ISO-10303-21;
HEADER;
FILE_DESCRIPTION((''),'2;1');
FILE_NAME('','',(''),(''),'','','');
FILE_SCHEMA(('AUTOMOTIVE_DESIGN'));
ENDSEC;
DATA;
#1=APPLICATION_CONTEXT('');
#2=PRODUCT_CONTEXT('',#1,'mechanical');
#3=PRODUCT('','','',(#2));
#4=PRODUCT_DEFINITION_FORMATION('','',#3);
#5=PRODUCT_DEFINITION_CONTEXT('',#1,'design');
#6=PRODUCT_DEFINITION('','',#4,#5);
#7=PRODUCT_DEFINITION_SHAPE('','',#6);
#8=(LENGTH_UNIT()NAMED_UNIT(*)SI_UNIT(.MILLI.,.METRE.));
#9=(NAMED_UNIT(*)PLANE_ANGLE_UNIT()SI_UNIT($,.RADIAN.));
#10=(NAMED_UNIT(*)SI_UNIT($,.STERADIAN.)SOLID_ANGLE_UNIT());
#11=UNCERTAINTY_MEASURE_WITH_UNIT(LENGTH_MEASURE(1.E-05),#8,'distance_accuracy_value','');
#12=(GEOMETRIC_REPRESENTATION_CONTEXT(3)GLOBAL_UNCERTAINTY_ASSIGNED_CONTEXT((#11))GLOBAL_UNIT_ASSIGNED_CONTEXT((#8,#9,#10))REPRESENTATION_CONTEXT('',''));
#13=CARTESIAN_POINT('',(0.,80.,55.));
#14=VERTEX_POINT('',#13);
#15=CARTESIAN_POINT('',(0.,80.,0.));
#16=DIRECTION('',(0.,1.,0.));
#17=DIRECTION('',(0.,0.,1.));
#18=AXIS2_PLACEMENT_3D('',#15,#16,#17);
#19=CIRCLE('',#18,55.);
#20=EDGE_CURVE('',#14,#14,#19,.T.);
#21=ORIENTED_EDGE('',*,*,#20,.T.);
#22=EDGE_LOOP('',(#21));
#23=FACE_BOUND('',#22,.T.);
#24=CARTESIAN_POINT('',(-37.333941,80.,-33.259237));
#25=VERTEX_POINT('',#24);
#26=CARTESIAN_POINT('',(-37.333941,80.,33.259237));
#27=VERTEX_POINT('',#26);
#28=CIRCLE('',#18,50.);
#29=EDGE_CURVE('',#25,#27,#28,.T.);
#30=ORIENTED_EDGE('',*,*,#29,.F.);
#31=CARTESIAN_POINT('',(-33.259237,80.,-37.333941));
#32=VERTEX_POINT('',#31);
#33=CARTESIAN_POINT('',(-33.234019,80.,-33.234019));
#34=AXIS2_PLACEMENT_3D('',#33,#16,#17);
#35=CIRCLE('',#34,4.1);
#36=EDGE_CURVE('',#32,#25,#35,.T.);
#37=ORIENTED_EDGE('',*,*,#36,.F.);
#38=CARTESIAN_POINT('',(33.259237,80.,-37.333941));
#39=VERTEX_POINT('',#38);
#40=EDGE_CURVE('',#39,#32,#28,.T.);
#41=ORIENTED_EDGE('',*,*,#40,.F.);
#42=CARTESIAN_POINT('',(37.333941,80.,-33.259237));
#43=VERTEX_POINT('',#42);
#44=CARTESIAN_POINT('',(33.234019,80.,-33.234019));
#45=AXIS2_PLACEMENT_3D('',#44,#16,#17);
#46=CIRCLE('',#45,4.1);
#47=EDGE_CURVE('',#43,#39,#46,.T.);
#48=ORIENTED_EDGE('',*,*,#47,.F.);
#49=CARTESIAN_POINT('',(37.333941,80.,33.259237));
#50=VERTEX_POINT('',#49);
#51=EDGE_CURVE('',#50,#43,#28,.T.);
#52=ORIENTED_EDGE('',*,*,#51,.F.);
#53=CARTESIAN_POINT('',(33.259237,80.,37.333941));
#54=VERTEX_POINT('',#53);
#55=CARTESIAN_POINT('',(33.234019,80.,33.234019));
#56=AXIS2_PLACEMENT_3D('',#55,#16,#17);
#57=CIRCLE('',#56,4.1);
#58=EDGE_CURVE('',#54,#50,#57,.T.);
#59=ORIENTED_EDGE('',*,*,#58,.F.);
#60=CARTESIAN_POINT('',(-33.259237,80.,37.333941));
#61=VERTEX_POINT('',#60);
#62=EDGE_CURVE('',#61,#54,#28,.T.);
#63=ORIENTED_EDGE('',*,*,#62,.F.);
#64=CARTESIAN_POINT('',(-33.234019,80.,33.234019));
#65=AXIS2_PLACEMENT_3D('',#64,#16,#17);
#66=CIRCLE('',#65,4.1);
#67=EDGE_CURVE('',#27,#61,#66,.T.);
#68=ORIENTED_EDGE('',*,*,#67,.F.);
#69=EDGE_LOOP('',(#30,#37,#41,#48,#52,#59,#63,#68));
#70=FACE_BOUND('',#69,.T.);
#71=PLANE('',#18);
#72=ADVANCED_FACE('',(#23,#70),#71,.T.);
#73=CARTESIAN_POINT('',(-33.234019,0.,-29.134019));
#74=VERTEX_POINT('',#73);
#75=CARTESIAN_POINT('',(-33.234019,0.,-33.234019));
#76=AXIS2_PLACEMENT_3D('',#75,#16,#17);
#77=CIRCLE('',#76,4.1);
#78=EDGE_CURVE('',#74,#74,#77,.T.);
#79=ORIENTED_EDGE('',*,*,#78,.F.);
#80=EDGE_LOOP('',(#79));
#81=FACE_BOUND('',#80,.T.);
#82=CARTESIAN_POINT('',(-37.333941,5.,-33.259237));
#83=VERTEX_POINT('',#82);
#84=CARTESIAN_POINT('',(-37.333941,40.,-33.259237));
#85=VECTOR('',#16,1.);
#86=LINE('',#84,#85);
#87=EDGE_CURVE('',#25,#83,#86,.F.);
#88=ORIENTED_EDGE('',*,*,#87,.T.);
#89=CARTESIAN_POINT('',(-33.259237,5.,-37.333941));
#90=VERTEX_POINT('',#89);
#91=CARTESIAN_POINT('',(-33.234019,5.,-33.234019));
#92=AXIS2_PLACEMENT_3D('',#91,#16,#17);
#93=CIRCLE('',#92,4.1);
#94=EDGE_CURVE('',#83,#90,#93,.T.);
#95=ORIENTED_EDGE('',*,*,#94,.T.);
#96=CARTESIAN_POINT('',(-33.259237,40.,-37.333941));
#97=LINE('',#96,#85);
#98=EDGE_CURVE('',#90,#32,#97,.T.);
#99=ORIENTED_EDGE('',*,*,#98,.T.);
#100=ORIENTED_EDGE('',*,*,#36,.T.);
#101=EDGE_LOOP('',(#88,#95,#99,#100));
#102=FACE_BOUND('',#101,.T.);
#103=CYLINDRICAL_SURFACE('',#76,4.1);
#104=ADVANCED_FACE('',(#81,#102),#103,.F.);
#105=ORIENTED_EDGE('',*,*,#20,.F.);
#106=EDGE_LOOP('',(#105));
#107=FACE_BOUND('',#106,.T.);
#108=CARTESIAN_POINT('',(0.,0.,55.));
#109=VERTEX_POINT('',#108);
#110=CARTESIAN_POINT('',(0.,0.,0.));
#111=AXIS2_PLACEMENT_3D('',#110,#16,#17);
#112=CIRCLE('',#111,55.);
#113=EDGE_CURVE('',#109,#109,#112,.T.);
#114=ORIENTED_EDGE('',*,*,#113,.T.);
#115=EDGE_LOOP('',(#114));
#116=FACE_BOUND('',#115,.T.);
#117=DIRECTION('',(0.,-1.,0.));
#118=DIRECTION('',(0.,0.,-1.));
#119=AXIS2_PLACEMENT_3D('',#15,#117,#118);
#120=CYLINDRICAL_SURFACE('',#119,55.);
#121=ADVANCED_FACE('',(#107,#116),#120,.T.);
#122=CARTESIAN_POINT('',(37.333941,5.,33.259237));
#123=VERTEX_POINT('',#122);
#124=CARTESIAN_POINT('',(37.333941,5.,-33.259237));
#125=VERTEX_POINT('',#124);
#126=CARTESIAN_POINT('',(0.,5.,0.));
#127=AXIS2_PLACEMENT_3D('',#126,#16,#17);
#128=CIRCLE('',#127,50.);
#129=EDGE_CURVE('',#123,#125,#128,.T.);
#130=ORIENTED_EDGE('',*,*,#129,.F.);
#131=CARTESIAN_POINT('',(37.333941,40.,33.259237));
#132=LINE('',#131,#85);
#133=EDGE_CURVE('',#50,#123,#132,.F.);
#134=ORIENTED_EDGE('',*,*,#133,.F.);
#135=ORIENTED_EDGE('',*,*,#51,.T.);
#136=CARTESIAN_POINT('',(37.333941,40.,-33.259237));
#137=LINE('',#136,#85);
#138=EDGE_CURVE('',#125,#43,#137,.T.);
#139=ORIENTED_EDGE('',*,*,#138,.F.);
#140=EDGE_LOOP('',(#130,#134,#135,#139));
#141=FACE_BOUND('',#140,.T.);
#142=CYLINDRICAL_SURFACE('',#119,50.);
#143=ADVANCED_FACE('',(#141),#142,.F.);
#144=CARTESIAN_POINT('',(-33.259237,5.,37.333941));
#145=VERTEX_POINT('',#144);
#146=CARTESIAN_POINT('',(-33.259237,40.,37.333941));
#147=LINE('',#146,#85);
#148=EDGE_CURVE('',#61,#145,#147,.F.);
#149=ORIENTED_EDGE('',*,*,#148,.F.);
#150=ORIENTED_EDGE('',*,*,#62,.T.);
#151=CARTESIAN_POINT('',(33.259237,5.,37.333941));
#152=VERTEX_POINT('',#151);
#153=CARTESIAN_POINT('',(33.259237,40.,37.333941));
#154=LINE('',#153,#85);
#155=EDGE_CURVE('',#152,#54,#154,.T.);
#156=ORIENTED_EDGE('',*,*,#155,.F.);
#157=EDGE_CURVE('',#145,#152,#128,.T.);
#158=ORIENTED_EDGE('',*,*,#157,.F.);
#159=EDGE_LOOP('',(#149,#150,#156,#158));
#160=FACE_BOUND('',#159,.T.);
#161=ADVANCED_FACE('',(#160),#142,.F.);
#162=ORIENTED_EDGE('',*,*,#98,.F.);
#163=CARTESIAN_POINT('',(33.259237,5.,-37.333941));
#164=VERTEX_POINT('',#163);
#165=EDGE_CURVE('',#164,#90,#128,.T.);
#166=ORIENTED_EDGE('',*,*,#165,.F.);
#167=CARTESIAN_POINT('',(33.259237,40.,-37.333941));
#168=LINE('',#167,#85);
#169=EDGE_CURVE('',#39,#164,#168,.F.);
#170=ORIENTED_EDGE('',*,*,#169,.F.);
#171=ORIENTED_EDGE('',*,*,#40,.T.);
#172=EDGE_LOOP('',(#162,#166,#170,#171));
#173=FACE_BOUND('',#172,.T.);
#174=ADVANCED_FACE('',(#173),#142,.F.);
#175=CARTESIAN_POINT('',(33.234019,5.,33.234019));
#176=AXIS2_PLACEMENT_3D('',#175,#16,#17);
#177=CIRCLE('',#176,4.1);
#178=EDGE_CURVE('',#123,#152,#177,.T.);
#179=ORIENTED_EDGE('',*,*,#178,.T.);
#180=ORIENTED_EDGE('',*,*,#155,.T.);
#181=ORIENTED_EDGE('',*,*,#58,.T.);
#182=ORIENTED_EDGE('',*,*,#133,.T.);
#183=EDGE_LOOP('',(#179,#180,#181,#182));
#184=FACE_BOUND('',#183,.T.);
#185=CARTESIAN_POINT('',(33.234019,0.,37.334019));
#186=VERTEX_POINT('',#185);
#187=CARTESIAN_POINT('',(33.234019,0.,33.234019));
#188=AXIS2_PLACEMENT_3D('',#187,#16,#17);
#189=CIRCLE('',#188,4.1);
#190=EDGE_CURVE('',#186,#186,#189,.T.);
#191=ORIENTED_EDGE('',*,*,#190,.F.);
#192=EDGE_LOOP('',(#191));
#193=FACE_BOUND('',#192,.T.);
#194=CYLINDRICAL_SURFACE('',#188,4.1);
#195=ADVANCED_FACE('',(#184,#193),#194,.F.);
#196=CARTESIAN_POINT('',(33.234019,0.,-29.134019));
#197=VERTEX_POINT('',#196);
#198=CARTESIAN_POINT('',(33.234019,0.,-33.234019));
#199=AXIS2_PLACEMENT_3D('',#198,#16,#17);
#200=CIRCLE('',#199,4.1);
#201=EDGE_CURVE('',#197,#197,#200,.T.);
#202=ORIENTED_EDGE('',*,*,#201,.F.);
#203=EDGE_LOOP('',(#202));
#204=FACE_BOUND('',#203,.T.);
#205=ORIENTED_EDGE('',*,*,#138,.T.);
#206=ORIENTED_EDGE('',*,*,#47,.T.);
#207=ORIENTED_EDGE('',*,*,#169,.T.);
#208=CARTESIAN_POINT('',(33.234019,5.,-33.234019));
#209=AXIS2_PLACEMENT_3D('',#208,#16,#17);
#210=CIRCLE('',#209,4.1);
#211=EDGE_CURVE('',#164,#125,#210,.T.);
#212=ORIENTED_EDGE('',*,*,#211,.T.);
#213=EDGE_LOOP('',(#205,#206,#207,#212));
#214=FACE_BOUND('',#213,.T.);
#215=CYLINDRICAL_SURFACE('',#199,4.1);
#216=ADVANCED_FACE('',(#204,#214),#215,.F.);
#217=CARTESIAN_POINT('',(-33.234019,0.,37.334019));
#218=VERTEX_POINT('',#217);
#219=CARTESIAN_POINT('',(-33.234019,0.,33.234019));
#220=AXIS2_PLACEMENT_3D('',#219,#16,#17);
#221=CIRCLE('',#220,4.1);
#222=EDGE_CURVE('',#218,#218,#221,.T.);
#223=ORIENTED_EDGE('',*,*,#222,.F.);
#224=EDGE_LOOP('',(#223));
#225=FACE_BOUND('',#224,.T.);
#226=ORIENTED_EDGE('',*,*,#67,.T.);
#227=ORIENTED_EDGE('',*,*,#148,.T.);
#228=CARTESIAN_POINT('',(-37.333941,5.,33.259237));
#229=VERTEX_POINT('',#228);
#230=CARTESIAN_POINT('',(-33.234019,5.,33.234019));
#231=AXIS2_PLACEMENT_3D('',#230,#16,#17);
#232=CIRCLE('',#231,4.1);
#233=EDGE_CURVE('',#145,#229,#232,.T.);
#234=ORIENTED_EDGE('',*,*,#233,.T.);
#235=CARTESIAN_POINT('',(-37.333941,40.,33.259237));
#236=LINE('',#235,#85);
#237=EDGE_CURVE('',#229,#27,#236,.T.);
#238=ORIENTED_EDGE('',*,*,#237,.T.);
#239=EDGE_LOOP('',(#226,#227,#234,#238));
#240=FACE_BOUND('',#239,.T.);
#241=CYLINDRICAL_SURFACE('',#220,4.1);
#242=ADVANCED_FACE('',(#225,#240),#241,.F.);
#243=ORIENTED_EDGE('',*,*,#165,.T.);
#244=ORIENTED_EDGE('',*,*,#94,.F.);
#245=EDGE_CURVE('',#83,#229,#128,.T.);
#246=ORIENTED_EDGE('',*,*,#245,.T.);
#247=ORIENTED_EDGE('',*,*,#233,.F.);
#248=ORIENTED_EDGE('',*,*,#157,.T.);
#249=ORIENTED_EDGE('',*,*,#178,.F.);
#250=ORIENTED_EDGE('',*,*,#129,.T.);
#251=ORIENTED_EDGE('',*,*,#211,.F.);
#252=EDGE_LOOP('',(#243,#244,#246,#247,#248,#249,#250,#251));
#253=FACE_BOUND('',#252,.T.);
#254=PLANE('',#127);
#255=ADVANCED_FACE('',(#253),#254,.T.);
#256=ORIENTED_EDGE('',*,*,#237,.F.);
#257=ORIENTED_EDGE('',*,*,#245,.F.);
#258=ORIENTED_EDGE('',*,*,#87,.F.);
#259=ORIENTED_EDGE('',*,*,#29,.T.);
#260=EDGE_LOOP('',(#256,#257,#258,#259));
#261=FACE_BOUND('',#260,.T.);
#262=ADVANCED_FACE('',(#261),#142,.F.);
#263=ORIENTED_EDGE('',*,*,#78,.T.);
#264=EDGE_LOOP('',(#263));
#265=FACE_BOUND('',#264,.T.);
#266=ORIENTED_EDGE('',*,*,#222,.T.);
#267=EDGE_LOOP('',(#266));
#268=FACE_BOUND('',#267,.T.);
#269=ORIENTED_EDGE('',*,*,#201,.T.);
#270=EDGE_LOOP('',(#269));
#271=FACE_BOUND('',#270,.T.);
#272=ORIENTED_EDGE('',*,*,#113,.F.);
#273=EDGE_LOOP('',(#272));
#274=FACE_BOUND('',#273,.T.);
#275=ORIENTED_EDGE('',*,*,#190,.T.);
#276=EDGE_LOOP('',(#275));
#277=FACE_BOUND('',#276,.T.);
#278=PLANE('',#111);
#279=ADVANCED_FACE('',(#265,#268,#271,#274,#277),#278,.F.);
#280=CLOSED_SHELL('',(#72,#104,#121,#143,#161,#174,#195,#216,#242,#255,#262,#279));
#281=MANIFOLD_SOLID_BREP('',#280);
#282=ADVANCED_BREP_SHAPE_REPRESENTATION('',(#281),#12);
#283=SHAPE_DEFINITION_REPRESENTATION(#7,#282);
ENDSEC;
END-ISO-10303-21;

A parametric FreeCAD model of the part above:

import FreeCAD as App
import Part
import Sketcher

V = App.Vector


def faces_at(feature, points):
    """Names of the faces that lie closest to the given points."""
    faces = feature.Shape.Faces
    near = lambda p: min(range(len(faces)), key=lambda i: faces[i].distToShape(Part.Vertex(*p))[0])
    return sorted({f"Face{near(p) + 1}" for p in points})

doc = App.newDocument("Part")
body = doc.addObject("PartDesign::Body", "Body")

# Sketch on XZ plane
sketch1 = body.newObject("Sketcher::SketchObject", "Sketch")
sketch1.AttachmentSupport = (doc.getObject("XZ_Plane"), [""])
sketch1.MapMode = "FlatFace"
sketch1.addGeometry(Part.Circle(V(0, 0, 0), V(0, 0, 1), 55), False)
sketch1.addConstraint([
    Sketcher.Constraint("Coincident", 0, 3, -1, 1),
    Sketcher.Constraint("Diameter", 0, 110.0),
])
pad1 = body.newObject("PartDesign::Pad", "Pad")
pad1.Profile = sketch1
pad1.Length = 80
pad1.Reversed = True
doc.recompute()

thickness = body.newObject("PartDesign::Thickness", "Thickness")
thickness.Base = (pad1, faces_at(pad1, [(0, 80, 0)]))
thickness.Value = 5
thickness.Reversed = True
thickness.Join = "Intersection"

# Sketch on XZ plane
sketch2 = body.newObject("Sketcher::SketchObject", "Sketch001")
sketch2.AttachmentSupport = (doc.getObject("XZ_Plane"), [""])
sketch2.MapMode = "FlatFace"
sketch2.AttachmentOffset = App.Placement(V(0, 0, -80), App.Rotation())
sketch2.addGeometry([
    Part.Circle(V(-33.2, 33.2, 0), V(0, 0, 1), 4.1),
    Part.Circle(V(-33.2, -33.2, 0), V(0, 0, 1), 4.1),
    Part.Circle(V(33.2, -33.2, 0), V(0, 0, 1), 4.1),
    Part.Circle(V(33.2, 33.2, 0), V(0, 0, 1), 4.1),
], False)
sketch2.addConstraint([
    Sketcher.Constraint("Equal", 0, 1),
    Sketcher.Constraint("Equal", 1, 2),
    Sketcher.Constraint("Equal", 2, 3),
    Sketcher.Constraint("Symmetric", 0, 3, 2, 3, -1, 1),
    Sketcher.Constraint("Symmetric", 1, 3, 3, 3, -1, 1),
    Sketcher.Constraint("Symmetric", 1, 3, 2, 3, -2),
    Sketcher.Constraint("Diameter", 0, 8.2),
    Sketcher.Constraint("DistanceX", 0, 3, -1, 1, 33.234019),
    Sketcher.Constraint("DistanceY", -1, 1, 0, 3, 33.234019),
])
pocket1 = body.newObject("PartDesign::Pocket", "Pocket")
pocket1.Profile = sketch2
pocket1.Type = "ThroughAll"
pocket1.Reversed = True

doc.recompute()
